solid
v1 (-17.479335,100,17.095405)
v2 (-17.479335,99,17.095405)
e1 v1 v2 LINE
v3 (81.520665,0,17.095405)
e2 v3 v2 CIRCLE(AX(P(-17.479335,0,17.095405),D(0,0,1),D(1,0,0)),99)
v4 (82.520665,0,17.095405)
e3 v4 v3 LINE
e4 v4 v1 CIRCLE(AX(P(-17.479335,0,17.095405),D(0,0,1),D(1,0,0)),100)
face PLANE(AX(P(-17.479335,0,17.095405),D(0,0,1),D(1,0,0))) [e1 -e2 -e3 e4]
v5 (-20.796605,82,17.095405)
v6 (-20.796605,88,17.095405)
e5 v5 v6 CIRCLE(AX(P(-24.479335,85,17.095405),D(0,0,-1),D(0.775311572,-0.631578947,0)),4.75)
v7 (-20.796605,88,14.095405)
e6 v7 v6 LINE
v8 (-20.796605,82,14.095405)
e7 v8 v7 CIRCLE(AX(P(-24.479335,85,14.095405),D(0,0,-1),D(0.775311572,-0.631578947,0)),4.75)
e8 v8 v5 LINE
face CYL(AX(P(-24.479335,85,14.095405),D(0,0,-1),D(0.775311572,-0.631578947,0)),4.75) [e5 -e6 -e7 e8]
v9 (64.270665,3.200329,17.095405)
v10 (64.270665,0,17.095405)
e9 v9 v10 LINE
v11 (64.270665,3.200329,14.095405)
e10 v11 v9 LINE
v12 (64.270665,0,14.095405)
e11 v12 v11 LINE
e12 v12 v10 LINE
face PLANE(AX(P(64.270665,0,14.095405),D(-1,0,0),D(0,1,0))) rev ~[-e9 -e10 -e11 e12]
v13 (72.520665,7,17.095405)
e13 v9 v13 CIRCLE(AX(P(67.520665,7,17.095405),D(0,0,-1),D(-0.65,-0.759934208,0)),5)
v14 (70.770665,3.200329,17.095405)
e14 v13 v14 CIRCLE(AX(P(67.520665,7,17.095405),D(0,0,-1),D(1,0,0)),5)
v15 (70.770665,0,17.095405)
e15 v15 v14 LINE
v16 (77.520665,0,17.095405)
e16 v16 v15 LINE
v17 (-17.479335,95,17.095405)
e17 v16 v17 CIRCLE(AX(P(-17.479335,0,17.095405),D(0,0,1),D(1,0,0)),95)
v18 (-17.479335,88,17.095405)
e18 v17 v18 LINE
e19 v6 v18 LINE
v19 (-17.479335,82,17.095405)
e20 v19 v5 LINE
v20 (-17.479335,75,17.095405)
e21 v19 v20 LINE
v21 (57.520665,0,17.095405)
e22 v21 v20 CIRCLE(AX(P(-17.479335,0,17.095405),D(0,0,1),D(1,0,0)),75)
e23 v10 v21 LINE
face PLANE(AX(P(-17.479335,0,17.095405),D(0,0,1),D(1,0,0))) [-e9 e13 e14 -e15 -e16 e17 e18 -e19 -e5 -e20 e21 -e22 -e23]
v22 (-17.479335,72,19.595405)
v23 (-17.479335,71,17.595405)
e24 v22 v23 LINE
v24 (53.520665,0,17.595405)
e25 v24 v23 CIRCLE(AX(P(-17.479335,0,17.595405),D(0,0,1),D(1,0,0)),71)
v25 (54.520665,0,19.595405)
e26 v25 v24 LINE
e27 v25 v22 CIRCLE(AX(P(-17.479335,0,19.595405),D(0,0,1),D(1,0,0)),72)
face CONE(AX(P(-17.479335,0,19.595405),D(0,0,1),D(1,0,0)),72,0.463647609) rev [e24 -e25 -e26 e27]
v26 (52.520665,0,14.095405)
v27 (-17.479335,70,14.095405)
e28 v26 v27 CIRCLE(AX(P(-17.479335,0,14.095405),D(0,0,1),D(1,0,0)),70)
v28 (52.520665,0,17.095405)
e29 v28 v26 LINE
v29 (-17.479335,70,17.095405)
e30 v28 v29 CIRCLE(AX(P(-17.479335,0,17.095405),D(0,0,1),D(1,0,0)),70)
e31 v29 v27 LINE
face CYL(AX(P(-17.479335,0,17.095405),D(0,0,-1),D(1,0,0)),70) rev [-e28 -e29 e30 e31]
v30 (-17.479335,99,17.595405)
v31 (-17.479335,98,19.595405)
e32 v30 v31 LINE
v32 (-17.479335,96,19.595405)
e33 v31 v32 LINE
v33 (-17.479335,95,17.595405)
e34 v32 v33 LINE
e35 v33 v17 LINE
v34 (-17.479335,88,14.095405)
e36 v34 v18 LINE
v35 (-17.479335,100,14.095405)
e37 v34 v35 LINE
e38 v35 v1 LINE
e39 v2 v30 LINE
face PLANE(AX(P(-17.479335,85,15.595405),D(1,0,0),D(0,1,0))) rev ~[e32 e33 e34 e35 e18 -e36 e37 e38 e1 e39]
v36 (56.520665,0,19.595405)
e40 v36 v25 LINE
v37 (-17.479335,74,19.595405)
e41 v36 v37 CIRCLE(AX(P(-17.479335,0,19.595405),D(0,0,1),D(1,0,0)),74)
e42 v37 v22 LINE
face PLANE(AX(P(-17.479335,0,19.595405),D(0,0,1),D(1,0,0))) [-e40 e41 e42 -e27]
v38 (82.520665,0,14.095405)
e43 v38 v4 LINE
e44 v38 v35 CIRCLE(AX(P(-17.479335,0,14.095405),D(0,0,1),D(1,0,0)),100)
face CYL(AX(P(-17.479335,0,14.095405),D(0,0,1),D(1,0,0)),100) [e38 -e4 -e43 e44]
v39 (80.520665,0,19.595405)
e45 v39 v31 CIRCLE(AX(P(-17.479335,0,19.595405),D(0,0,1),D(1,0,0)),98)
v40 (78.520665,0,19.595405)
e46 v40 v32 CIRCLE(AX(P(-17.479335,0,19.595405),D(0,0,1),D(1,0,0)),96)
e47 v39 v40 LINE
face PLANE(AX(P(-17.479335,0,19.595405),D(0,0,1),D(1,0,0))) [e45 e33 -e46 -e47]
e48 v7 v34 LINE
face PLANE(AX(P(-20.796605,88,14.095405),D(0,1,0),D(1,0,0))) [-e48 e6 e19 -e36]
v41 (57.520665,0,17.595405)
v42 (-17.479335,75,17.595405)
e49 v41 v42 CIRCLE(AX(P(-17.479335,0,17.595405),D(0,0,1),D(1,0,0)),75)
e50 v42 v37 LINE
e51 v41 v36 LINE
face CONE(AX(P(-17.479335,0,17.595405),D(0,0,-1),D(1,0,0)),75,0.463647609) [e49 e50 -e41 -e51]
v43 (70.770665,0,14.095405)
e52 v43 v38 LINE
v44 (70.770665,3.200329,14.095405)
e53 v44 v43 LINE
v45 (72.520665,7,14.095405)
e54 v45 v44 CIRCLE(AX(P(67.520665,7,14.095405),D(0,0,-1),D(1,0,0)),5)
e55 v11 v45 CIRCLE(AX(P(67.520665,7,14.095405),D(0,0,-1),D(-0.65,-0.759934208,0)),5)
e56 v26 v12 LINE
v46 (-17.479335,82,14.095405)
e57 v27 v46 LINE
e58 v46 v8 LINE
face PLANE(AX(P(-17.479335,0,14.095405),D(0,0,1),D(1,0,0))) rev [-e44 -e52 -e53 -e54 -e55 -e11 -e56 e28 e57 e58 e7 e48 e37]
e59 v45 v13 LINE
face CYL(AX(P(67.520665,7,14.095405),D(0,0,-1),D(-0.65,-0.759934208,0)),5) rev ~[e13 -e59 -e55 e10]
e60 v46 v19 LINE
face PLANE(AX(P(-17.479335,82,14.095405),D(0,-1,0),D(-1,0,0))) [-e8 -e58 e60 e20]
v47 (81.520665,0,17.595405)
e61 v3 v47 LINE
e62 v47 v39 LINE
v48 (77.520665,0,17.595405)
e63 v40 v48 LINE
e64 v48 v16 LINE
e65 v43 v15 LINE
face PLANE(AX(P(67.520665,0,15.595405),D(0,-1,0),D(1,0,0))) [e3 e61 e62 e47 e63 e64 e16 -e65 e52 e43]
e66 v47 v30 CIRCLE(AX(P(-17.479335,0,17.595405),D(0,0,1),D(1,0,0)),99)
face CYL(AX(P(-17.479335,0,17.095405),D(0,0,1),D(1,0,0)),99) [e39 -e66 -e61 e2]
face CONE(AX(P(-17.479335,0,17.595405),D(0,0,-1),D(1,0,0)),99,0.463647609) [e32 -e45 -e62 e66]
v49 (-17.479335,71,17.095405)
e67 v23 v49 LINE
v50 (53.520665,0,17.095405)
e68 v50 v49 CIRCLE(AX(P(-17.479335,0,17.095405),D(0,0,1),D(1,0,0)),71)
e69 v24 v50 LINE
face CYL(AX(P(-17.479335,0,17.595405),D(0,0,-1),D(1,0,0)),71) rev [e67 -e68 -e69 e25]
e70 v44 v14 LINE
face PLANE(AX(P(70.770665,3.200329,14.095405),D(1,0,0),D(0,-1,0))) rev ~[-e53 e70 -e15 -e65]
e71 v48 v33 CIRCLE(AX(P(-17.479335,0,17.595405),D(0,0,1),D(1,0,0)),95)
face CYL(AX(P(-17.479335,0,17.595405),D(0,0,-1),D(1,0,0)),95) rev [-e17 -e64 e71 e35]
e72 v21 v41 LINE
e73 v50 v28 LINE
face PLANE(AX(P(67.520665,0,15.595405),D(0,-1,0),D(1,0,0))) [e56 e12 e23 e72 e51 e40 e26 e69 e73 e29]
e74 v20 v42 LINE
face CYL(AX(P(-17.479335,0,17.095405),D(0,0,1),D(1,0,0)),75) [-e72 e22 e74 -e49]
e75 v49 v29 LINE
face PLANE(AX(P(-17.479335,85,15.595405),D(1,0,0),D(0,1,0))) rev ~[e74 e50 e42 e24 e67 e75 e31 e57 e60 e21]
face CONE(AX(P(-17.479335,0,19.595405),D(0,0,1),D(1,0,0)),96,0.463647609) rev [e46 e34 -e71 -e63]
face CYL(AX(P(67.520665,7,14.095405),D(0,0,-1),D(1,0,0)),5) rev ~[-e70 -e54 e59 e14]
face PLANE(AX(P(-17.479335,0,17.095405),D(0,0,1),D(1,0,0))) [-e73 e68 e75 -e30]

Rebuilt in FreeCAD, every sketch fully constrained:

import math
import FreeCAD as App
import Part
import Sketcher

V = App.Vector


def add_polygon(sketch, points):
    """Adds a closed chain of lines whose ends are joined by coincident constraints."""
    first, n = sketch.GeometryCount, len(points)
    for a, b in zip(points, points[1:] + points[:1]):
        sketch.addGeometry(Part.LineSegment(App.Vector(*a, 0), App.Vector(*b, 0)), False)
    for i in range(n):
        sketch.addConstraint(Sketcher.Constraint("Coincident", first + i, 2, first + (i + 1) % n, 1))

doc = App.newDocument("Part")
params = doc.addObject("Spreadsheet::Sheet", "Params")
for row, (alias, value) in enumerate([
    ("sketch1_width", "30 mm"),
    ("sketch1_width2", "1 mm"),
    ("sketch1_width3", "2 mm"),
    ("sketch1_width4", "20 mm"),
    ("sketch1_height", "3 mm"),
    ("revolution_angle", "90 deg"),
    ("sketch2_radius", "5 mm"),
    ("sketch2_width", "6.5 mm"),
    ("pocket1_length", "25 mm"),
    ("sketch3_height", "6 mm"),
    ("sketch3_radius", "4.75 mm"),
    ("pad1_length", "3 mm"),
], start=1):
    params.set(f"A{row}", alias)
    params.set(f"B{row}", "=" + value)
    params.setAlias(f"B{row}", alias)

body = doc.addObject("PartDesign::Body", "Body")

sketch1 = body.newObject("Sketcher::SketchObject", "Sketch")
sketch1.AttachmentSupport = (doc.getObject("XZ_Plane"), [""])
sketch1.MapMode = "FlatFace"
add_polygon(sketch1, [(52.520665, 17.095405), (52.520665, 14.095405), (82.520665, 14.095405), (82.520665, 17.095405), (81.520665, 17.095405), (81.520665, 17.595405), (80.520665, 19.595405), (78.520665, 19.595405), (77.520665, 17.595405), (77.520665, 17.095405), (57.520665, 17.095405), (57.520665, 17.595405), (56.520665, 19.595405), (54.520665, 19.595405), (53.520665, 17.595405), (53.520665, 17.095405)])
sketch1.addGeometry(Part.LineSegment(V(-17.479335, 14.095405, 0), V(-17.479335, 19.595405, 0)), True)
sketch1.addConstraint(Sketcher.Constraint("Vertical", 0))
sketch1.addConstraint(Sketcher.Constraint("Horizontal", 1))
sketch1.addConstraint(Sketcher.Constraint("Vertical", 2))
sketch1.addConstraint(Sketcher.Constraint("Horizontal", 3))
sketch1.addConstraint(Sketcher.Constraint("Vertical", 4))
sketch1.addConstraint(Sketcher.Constraint("Horizontal", 6))
sketch1.addConstraint(Sketcher.Constraint("Vertical", 8))
sketch1.addConstraint(Sketcher.Constraint("Horizontal", 9))
sketch1.addConstraint(Sketcher.Constraint("Vertical", 10))
sketch1.addConstraint(Sketcher.Constraint("Horizontal", 12))
sketch1.addConstraint(Sketcher.Constraint("Vertical", 14))
sketch1.addConstraint(Sketcher.Constraint("Horizontal", 15))
sketch1.addConstraint(Sketcher.Constraint("Vertical", 16))
sketch1.addConstraint(Sketcher.Constraint("Parallel", 5, 11))
sketch1.addConstraint(Sketcher.Constraint("Parallel", 7, 13))
sketch1.addConstraint(Sketcher.Constraint("Horizontal", 4, 2, 7, 2))
sketch1.addConstraint(Sketcher.Constraint("Horizontal", 3, 2, 8, 2))
sketch1.addConstraint(Sketcher.Constraint("Horizontal", 7, 2, 10, 2))
sketch1.addConstraint(Sketcher.Constraint("Horizontal", 6, 2, 11, 2))
sketch1.addConstraint(Sketcher.Constraint("Horizontal", 10, 2, 13, 2))
sketch1.addConstraint(Sketcher.Constraint("Horizontal", 9, 2, 14, 2))
sketch1.addConstraint(Sketcher.Constraint("Horizontal", 1, 2, 16, 1))
sketch1.addConstraint(Sketcher.Constraint("Horizontal", 12, 2, 16, 2))
sketch1.addConstraint(Sketcher.Constraint("Equal", 6, 12))
sketch1.addConstraint(Sketcher.Constraint("Equal", 3, 15))
sketch1.addConstraint(Sketcher.Constraint("Equal", 5, 7))
sketch1.addConstraint(Sketcher.Constraint("DistanceX", 1, 1, 1, 2, 30.0))
sketch1.addConstraint(Sketcher.Constraint("DistanceX", 3, 2, 3, 1, 1.0))
sketch1.addConstraint(Sketcher.Constraint("DistanceX", 6, 2, 6, 1, 2.0))
sketch1.addConstraint(Sketcher.Constraint("DistanceX", 9, 2, 9, 1, 20.0))
sketch1.addConstraint(Sketcher.Constraint("DistanceY", 0, 2, 0, 1, 3.0))
sketch1.addConstraint(Sketcher.Constraint("DistanceY", 4, 1, 4, 2, 0.5))
sketch1.addConstraint(Sketcher.Constraint("DistanceY", 16, 1, 16, 2, 5.5))
sketch1.addConstraint(Sketcher.Constraint("DistanceX", 16, 1, 0, 2, 70.0))
sketch1.addConstraint(Sketcher.Constraint("DistanceX", -1, 1, 0, 2, 52.520665))
sketch1.addConstraint(Sketcher.Constraint("DistanceY", -1, 1, 0, 2, 14.095405))
sketch1.setExpression("Constraints[42]", "Params.sketch1_width")
sketch1.setExpression("Constraints[43]", "Params.sketch1_width2")
sketch1.setExpression("Constraints[44]", "Params.sketch1_width3")
sketch1.setExpression("Constraints[45]", "Params.sketch1_width4")
sketch1.setExpression("Constraints[46]", "Params.sketch1_height")
revolution = body.newObject("PartDesign::Revolution", "Revolution")
revolution.Profile = sketch1
revolution.ReferenceAxis = (sketch1, ["Axis0"])
revolution.setExpression("Angle", "Params.revolution_angle")

sketch2 = body.newObject("Sketcher::SketchObject", "Sketch001")
sketch2.AttachmentSupport = (doc.getObject("XY_Plane"), [""])
sketch2.MapMode = "FlatFace"
sketch2.AttachmentOffset = App.Placement(V(0, 0, 14.095405), App.Rotation())
sketch2.addGeometry(Part.LineSegment(V(64.270665, 0, 0), V(64.270665, 3.200329, 0)), False)
sketch2.addGeometry(Part.ArcOfCircle(Part.Circle(V(67.520665, 7, 0), V(0, 0, 1), 5), math.radians(0), math.radians(229.458398)), False)
sketch2.addGeometry(Part.ArcOfCircle(Part.Circle(V(67.520665, 7, 0), V(0, 0, 1), 5), math.radians(-49.458398), math.radians(0)), False)
sketch2.addGeometry(Part.LineSegment(V(70.770665, 3.200329, 0), V(70.770665, 0, 0)), False)
sketch2.addGeometry(Part.LineSegment(V(70.770665, 0, 0), V(64.270665, 0, 0)), False)
sketch2.addConstraint(Sketcher.Constraint("Coincident", 0, 2, 1, 2))
sketch2.addConstraint(Sketcher.Constraint("Tangent", 1, 1, 2, 2))
sketch2.addConstraint(Sketcher.Constraint("Coincident", 2, 1, 3, 1))
sketch2.addConstraint(Sketcher.Constraint("Coincident", 3, 2, 4, 1))
sketch2.addConstraint(Sketcher.Constraint("Coincident", 4, 2, 0, 1))
sketch2.addConstraint(Sketcher.Constraint("Vertical", 0))
sketch2.addConstraint(Sketcher.Constraint("Vertical", 3))
sketch2.addConstraint(Sketcher.Constraint("Horizontal", 4))
sketch2.addConstraint(Sketcher.Constraint("Equal", 1, 2))
sketch2.addConstraint(Sketcher.Constraint("PointOnObject", 3, 2, -1))
sketch2.addConstraint(Sketcher.Constraint("Horizontal", 2, 3, 1, 1))
sketch2.addConstraint(Sketcher.Constraint("Horizontal", 0, 2, 2, 1))
sketch2.addConstraint(Sketcher.Constraint("Radius", 1, 5.0))
sketch2.addConstraint(Sketcher.Constraint("DistanceX", 4, 2, 4, 1, 6.5))
sketch2.addConstraint(Sketcher.Constraint("DistanceY", -1, 1, 1, 3, 7.0))
sketch2.addConstraint(Sketcher.Constraint("DistanceX", -1, 1, 1, 3, 67.520665))
sketch2.setExpression("Constraints[12]", "Params.sketch2_radius")
sketch2.setExpression("Constraints[13]", "Params.sketch2_width")
pocket1 = body.newObject("PartDesign::Pocket", "Pocket")
pocket1.Profile = sketch2
pocket1.setExpression("Length", "Params.pocket1_length")
pocket1.Reversed = True

sketch3 = body.newObject("Sketcher::SketchObject", "Sketch002")
sketch3.AttachmentSupport = (doc.getObject("XY_Plane"), [""])
sketch3.MapMode = "FlatFace"
sketch3.AttachmentOffset = App.Placement(V(0, 0, 14.095405), App.Rotation())
sketch3.addGeometry(Part.LineSegment(V(-17.479335, 88, 0), V(-17.479335, 82, 0)), False)
sketch3.addGeometry(Part.LineSegment(V(-17.479335, 82, 0), V(-20.796605, 82, 0)), False)
sketch3.addGeometry(Part.ArcOfCircle(Part.Circle(V(-24.479335, 85, 0), V(0, 0, 1), 4.75), math.radians(39.166711), math.radians(320.833289)), False)
sketch3.addGeometry(Part.LineSegment(V(-20.796605, 88, 0), V(-17.479335, 88, 0)), False)
sketch3.addConstraint(Sketcher.Constraint("Coincident", 0, 2, 1, 1))
sketch3.addConstraint(Sketcher.Constraint("Coincident", 1, 2, 2, 2))
sketch3.addConstraint(Sketcher.Constraint("Coincident", 2, 1, 3, 1))
sketch3.addConstraint(Sketcher.Constraint("Coincident", 3, 2, 0, 1))
sketch3.addConstraint(Sketcher.Constraint("Vertical", 0))
sketch3.addConstraint(Sketcher.Constraint("Horizontal", 1))
sketch3.addConstraint(Sketcher.Constraint("Horizontal", 3))
sketch3.addConstraint(Sketcher.Constraint("Vertical", 1, 2, 2, 1))
sketch3.addConstraint(Sketcher.Constraint("DistanceY", 0, 2, 0, 1, 6.0))
sketch3.addConstraint(Sketcher.Constraint("Radius", 2, 4.75))
sketch3.addConstraint(Sketcher.Constraint("DistanceY", -1, 1, 2, 3, 85.0))
sketch3.addConstraint(Sketcher.Constraint("DistanceX", 2, 3, 0, 2, 7.0))
sketch3.addConstraint(Sketcher.Constraint("DistanceX", 2, 3, -1, 1, 24.479335))
sketch3.setExpression("Constraints[8]", "Params.sketch3_height")
sketch3.setExpression("Constraints[9]", "Params.sketch3_radius")
pad1 = body.newObject("PartDesign::Pad", "Pad")
pad1.Profile = sketch3
pad1.setExpression("Length", "Params.pad1_length")

doc.recompute()
